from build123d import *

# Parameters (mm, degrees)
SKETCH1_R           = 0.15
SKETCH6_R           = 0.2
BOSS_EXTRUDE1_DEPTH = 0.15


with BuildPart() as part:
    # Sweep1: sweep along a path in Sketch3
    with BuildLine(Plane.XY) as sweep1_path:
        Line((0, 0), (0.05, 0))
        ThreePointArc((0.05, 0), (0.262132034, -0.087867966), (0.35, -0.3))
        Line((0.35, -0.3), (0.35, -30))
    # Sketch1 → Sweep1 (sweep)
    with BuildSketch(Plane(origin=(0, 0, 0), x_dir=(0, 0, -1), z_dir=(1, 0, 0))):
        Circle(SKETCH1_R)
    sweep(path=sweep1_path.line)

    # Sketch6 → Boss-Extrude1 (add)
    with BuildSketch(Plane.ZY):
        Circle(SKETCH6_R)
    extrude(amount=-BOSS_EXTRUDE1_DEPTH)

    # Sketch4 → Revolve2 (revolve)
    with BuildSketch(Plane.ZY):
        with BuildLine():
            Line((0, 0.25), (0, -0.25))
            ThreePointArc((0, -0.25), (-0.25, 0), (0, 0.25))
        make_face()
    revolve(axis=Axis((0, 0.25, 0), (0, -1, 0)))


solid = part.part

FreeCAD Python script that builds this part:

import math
import FreeCAD as App
import Part
import Sketcher

V = App.Vector
Q = App.Units.Quantity

doc = App.newDocument("Part")
body = doc.addObject("PartDesign::Body", "Body")

# Sketch on YZ plane
sketch1 = doc.addObject("Sketcher::SketchObject", "Sketch")
body.addObject(sketch1)
sketch1.AttachmentSupport = (doc.YZ_Plane, [""])
sketch1.MapMode = "FlatFace"
sketch1.addGeometry(Part.Circle(V(0, 0, 0), V(0, 0, 1), 0.15), False)
sketch1.addConstraint([
    Sketcher.Constraint("Coincident", 0, 3, -1, 1),
    Sketcher.Constraint("Diameter", 0, Q("0.3 mm")),
])

# Sketch on XY plane
sketch2 = doc.addObject("Sketcher::SketchObject", "Sketch001")
body.addObject(sketch2)
sketch2.AttachmentSupport = (doc.XY_Plane, [""])
sketch2.MapMode = "FlatFace"
sketch2.addGeometry([
    Part.LineSegment(V(0, 0, 0), V(0.05, 0, 0)),
    Part.ArcOfCircle(Part.Circle(V(0.05, -0.3, 0), V(0, 0, 1), 0.3), math.radians(0), math.radians(90)),
    Part.LineSegment(V(0.35, -0.3, 0), V(0.35, -30, 0)),
], False)
sketch2.addConstraint([
    Sketcher.Constraint("Tangent", 0, 2, 1, 2),
    Sketcher.Constraint("Tangent", 1, 1, 2, 1),
    Sketcher.Constraint("Horizontal", 0),
    Sketcher.Constraint("Vertical", 2),
    Sketcher.Constraint("Coincident", 0, 1, -1, 1),
    Sketcher.Constraint("Radius", 1, Q("0.3 mm")),
    Sketcher.Constraint("DistanceY", 2, 2, 2, 1, Q("29.7 mm")),
    Sketcher.Constraint("DistanceX", 0, 1, 0, 2, Q("0.05 mm")),
])
doc.recompute()

additivepipe = doc.addObject("PartDesign::AdditivePipe", "AdditivePipe")
body.addObject(additivepipe)
additivepipe.Profile = sketch1
additivepipe.Spine = (sketch2, ["Edge1", "Edge2", "Edge3"])

# Sketch on YZ plane
sketch3 = doc.addObject("Sketcher::SketchObject", "Sketch002")
body.addObject(sketch3)
sketch3.AttachmentSupport = (doc.YZ_Plane, [""])
sketch3.MapMode = "FlatFace"
sketch3.addGeometry(Part.Circle(V(0, 0, 0), V(0, 0, 1), 0.2), False)
sketch3.addConstraint([
    Sketcher.Constraint("Coincident", 0, 3, -1, 1),
    Sketcher.Constraint("Diameter", 0, Q("0.4 mm")),
])
pad1 = doc.addObject("PartDesign::Pad", "Pad")
body.addObject(pad1)
pad1.Profile = sketch3
pad1.Length = 0.15

# Sketch on YZ plane
sketch4 = doc.addObject("Sketcher::SketchObject", "Sketch003")
body.addObject(sketch4)
sketch4.AttachmentSupport = (doc.YZ_Plane, [""])
sketch4.MapMode = "FlatFace"
sketch4.addGeometry([
    Part.LineSegment(V(-0.25, 0, 0), V(0.25, 0, 0)),
    Part.ArcOfCircle(Part.Circle(V(0, 0, 0), V(0, 0, 1), 0.25), math.radians(180), math.radians(360)),
], False)
sketch4.addConstraint([
    Sketcher.Constraint("Coincident", 0, 1, 1, 1),
    Sketcher.Constraint("Coincident", 1, 2, 0, 2),
    Sketcher.Constraint("Horizontal", 0),
    Sketcher.Constraint("Coincident", 1, 3, -1, 1),
    Sketcher.Constraint("PointOnObject", 0, 1, -1),
    Sketcher.Constraint("Radius", 1, Q("0.25 mm")),
])
revolution = doc.addObject("PartDesign::Revolution", "Revolution")
body.addObject(revolution)
revolution.Profile = sketch4
revolution.ReferenceAxis = (sketch4, ["H_Axis"])
revolution.Angle = 360

doc.recompute()
